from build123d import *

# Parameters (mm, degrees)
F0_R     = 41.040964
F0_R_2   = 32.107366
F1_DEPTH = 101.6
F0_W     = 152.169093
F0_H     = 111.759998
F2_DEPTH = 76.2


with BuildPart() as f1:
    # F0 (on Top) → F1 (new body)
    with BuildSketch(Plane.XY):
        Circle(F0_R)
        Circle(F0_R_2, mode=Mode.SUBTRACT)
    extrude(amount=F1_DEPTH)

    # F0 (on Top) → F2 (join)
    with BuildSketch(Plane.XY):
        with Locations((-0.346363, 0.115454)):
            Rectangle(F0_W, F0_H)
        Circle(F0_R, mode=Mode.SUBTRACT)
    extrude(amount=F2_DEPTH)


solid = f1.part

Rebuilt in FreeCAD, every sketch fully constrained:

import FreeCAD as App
import Part
import Sketcher
Q = App.Units.Quantity

doc = App.newDocument("Part")
params = doc.addObject("Spreadsheet::Sheet", "Params")
for row, (alias, value) in enumerate([
    ("pad1_length", "4 in"),
    ("sketch2_height", "4.3999999 in"),
    ("pad2_length", "3 in"),
], start=1):
    params.set(f"A{row}", alias)
    params.set(f"B{row}", "=" + value)
    params.setAlias(f"B{row}", alias)

body = doc.addObject("PartDesign::Body", "Body")

# Sketch on XY plane
sketch1 = body.newObject("Sketcher::SketchObject", "Sketch")
sketch1.AttachmentSupport = (doc.getObject("XY_Plane"), [""])
sketch1.MapMode = "FlatFace"
sketch1.addGeometry(Part.Circle(App.Vector(0, 0, 0), App.Vector(0, 0, 1), 41.040964), False)
sketch1.addGeometry(Part.Circle(App.Vector(0, 0, 0), App.Vector(0, 0, 1), 32.107366), False)
sketch1.addConstraint(Sketcher.Constraint("Coincident", 0, 3, -1, 1))
sketch1.addConstraint(Sketcher.Constraint("Coincident", 1, 3, -1, 1))
sketch1.addConstraint(Sketcher.Constraint("Diameter", 0, 82.081928))
sketch1.addConstraint(Sketcher.Constraint("Diameter", 1, 64.214732))
pad1 = body.newObject("PartDesign::Pad", "Pad")
pad1.Profile = sketch1
pad1.setExpression("Length", "Params.pad1_length")

# Sketch on XY plane
sketch2 = body.newObject("Sketcher::SketchObject", "Sketch001")
sketch2.AttachmentSupport = (doc.getObject("XY_Plane"), [""])
sketch2.MapMode = "FlatFace"
sketch2.addGeometry(Part.LineSegment(App.Vector(-76.430909, 55.995453, 0), App.Vector(-76.430909, -55.764545, 0)), False)
sketch2.addGeometry(Part.LineSegment(App.Vector(-76.430909, -55.764545, 0), App.Vector(75.738184, -55.764545, 0)), False)
sketch2.addGeometry(Part.LineSegment(App.Vector(75.738184, -55.764545, 0), App.Vector(75.738184, 55.995453, 0)), False)
sketch2.addGeometry(Part.LineSegment(App.Vector(75.738184, 55.995453, 0), App.Vector(-76.430909, 55.995453, 0)), False)
sketch2.addGeometry(Part.Circle(App.Vector(0, 0, 0), App.Vector(0, 0, 1), 41.040964), False)
sketch2.addConstraint(Sketcher.Constraint("Coincident", 0, 2, 1, 1))
sketch2.addConstraint(Sketcher.Constraint("Coincident", 1, 2, 2, 1))
sketch2.addConstraint(Sketcher.Constraint("Coincident", 2, 2, 3, 1))
sketch2.addConstraint(Sketcher.Constraint("Coincident", 3, 2, 0, 1))
sketch2.addConstraint(Sketcher.Constraint("Vertical", 0))
sketch2.addConstraint(Sketcher.Constraint("Horizontal", 1))
sketch2.addConstraint(Sketcher.Constraint("Vertical", 2))
sketch2.addConstraint(Sketcher.Constraint("Horizontal", 3))
sketch2.addConstraint(Sketcher.Constraint("Coincident", 4, 3, -1, 1))
sketch2.addConstraint(Sketcher.Constraint("DistanceY", 0, 2, 0, 1, Q("4.3999999 in")))
sketch2.addConstraint(Sketcher.Constraint("Diameter", 4, 82.081928))
sketch2.addConstraint(Sketcher.Constraint("DistanceX", 1, 1, 1, 2, 152.169093))
sketch2.addConstraint(Sketcher.Constraint("DistanceX", 0, 2, -1, 1, 76.430909))
sketch2.addConstraint(Sketcher.Constraint("DistanceY", 0, 2, -1, 1, 55.764545))
sketch2.setExpression("Constraints[9]", "Params.sketch2_height")
pad2 = body.newObject("PartDesign::Pad", "Pad001")
pad2.Profile = sketch2
pad2.setExpression("Length", "Params.pad2_length")

doc.recompute()
